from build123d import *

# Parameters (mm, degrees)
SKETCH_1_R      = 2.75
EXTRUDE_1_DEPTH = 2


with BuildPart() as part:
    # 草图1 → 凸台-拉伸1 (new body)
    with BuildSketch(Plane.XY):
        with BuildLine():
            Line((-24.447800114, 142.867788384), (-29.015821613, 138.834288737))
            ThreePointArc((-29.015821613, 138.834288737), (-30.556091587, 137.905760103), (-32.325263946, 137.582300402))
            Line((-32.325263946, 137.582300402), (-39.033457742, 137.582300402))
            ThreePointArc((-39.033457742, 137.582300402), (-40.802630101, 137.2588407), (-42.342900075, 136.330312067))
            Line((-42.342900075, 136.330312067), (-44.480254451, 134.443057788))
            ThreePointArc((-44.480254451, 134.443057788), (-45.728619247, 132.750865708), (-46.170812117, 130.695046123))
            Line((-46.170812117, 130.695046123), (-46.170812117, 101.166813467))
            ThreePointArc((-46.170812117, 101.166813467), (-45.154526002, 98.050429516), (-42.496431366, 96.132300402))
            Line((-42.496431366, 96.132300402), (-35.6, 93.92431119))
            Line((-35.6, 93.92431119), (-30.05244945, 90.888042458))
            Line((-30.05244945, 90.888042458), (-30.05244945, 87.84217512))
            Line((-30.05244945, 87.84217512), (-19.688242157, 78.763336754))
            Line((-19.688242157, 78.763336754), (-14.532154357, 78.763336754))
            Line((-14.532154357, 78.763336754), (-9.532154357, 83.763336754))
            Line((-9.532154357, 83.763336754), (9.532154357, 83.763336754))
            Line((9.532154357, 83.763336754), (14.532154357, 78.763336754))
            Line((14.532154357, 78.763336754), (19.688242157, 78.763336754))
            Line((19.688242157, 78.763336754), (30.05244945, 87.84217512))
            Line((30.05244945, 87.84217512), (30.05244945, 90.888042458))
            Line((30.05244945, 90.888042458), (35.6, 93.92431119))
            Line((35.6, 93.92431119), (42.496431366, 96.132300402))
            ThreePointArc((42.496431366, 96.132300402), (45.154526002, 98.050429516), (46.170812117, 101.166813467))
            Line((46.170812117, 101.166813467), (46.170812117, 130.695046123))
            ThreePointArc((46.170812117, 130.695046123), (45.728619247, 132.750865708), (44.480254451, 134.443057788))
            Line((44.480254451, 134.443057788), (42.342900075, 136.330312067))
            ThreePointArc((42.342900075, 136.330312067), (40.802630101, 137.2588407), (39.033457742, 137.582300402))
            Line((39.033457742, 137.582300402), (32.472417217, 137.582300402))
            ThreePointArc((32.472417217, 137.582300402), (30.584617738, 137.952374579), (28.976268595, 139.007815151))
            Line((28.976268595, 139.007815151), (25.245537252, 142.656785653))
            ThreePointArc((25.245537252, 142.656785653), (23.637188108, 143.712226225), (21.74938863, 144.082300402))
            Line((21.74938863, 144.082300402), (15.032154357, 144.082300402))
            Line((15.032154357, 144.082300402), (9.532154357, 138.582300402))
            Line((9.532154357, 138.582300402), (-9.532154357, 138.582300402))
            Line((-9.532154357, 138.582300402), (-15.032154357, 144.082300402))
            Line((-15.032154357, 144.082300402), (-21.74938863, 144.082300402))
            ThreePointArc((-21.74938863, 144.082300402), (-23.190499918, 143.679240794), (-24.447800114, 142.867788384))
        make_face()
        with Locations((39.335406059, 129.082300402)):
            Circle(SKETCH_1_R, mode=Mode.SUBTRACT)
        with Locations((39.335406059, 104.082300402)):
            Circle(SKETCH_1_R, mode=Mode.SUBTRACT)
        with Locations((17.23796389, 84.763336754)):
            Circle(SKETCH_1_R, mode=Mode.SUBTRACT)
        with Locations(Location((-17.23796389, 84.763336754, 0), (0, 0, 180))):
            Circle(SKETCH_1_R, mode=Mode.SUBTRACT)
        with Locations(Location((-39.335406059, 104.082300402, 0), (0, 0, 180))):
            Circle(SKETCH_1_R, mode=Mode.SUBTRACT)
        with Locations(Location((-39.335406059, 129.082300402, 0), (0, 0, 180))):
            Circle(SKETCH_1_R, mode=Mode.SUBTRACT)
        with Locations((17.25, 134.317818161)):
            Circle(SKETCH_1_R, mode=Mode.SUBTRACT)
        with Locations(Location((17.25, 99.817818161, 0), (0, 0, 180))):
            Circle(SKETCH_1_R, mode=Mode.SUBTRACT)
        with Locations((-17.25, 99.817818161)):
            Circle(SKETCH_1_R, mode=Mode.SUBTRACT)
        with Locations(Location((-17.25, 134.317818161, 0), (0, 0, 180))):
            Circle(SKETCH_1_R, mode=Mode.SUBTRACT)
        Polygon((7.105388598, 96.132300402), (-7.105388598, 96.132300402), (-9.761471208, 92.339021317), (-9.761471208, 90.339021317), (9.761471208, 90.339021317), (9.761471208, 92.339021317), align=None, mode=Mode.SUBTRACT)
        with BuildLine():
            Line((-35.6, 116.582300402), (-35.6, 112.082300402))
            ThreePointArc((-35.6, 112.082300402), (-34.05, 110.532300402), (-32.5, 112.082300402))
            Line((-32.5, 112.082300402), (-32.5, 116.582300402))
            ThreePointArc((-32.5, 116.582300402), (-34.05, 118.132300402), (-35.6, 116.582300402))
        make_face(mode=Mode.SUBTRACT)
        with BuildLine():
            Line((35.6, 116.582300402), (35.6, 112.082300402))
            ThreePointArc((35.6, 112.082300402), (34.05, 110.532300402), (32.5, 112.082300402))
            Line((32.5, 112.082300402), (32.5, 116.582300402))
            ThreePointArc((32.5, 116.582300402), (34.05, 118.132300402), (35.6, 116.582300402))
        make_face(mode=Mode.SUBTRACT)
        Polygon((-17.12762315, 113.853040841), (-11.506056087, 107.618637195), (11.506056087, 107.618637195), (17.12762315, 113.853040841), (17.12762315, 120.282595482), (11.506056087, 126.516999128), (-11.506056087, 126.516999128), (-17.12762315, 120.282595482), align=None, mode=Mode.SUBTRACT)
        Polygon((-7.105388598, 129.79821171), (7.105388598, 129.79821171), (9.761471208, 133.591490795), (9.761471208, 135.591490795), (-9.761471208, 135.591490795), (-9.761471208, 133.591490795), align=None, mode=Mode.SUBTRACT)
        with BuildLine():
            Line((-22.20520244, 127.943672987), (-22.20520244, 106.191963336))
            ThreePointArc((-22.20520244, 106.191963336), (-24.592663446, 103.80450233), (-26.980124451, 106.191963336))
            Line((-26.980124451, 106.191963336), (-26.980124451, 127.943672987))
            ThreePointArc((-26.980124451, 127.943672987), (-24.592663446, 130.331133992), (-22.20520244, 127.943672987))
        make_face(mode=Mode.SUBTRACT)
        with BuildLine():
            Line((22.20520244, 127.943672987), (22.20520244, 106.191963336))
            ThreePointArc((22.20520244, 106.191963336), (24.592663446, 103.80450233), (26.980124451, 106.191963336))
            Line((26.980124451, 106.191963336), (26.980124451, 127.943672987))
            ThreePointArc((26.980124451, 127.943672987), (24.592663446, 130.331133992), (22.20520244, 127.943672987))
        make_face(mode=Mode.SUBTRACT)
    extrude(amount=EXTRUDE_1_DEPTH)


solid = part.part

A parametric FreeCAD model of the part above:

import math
import FreeCAD as App
import Part
import Sketcher
Q = App.Units.Quantity

doc = App.newDocument("Part")
body = doc.addObject("PartDesign::Body", "Body")

# Sketch on XY plane
sketch1 = body.newObject("Sketcher::SketchObject", "Sketch")
sketch1.AttachmentSupport = (doc.getObject("XY_Plane"), [""])
sketch1.MapMode = "FlatFace"
sketch1.addGeometry(Part.LineSegment(App.Vector(-24.4, 142.9, 0), App.Vector(-29, 138.8, 0)), False)
sketch1.addGeometry(Part.ArcOfCircle(Part.Circle(App.Vector(-32.3, 142.6, 0), App.Vector(0, 0, 1), 5), math.radians(-90), math.radians(-49)), False)
sketch1.addGeometry(Part.LineSegment(App.Vector(-32.3, 137.6, 0), App.Vector(-39, 137.6, 0)), False)
sketch1.addGeometry(Part.ArcOfCircle(Part.Circle(App.Vector(-39, 132.6, 0), App.Vector(0, 0, 1), 5), math.radians(90), math.radians(131)), False)
sketch1.addGeometry(Part.LineSegment(App.Vector(-42.3, 136.3, 0), App.Vector(-44.5, 134.4, 0)), False)
sketch1.addGeometry(Part.ArcOfCircle(Part.Circle(App.Vector(-41.2, 130.7, 0), App.Vector(0, 0, 1), 5), math.radians(131), math.radians(180)), False)
sketch1.addGeometry(Part.LineSegment(App.Vector(-46.2, 130.7, 0), App.Vector(-46.2, 101.2, 0)), False)
sketch1.addGeometry(Part.ArcOfCircle(Part.Circle(App.Vector(-40.9, 101.2, 0), App.Vector(0, 0, 1), 5.3), math.radians(180), math.radians(252)), False)
sketch1.addGeometry(Part.LineSegment(App.Vector(-42.5, 96.1, 0), App.Vector(-35.6, 93.9, 0)), False)
sketch1.addGeometry(Part.LineSegment(App.Vector(-35.6, 93.9, 0), App.Vector(-30.1, 90.9, 0)), False)
sketch1.addGeometry(Part.LineSegment(App.Vector(-30.1, 90.9, 0), App.Vector(-30.1, 87.8, 0)), False)
sketch1.addGeometry(Part.LineSegment(App.Vector(-30.1, 87.8, 0), App.Vector(-19.7, 78.8, 0)), False)
sketch1.addGeometry(Part.LineSegment(App.Vector(-19.7, 78.8, 0), App.Vector(-14.5, 78.8, 0)), False)
sketch1.addGeometry(Part.LineSegment(App.Vector(-14.5, 78.8, 0), App.Vector(-9.5, 83.8, 0)), False)
sketch1.addGeometry(Part.LineSegment(App.Vector(-9.5, 83.8, 0), App.Vector(9.5, 83.8, 0)), False)
sketch1.addGeometry(Part.LineSegment(App.Vector(9.5, 83.8, 0), App.Vector(14.5, 78.8, 0)), False)
sketch1.addGeometry(Part.LineSegment(App.Vector(14.5, 78.8, 0), App.Vector(19.7, 78.8, 0)), False)
sketch1.addGeometry(Part.LineSegment(App.Vector(19.7, 78.8, 0), App.Vector(30.1, 87.8, 0)), False)
sketch1.addGeometry(Part.LineSegment(App.Vector(30.1, 87.8, 0), App.Vector(30.1, 90.9, 0)), False)
sketch1.addGeometry(Part.LineSegment(App.Vector(30.1, 90.9, 0), App.Vector(35.6, 93.9, 0)), False)
sketch1.addGeometry(Part.LineSegment(App.Vector(35.6, 93.9, 0), App.Vector(42.5, 96.1, 0)), False)
sketch1.addGeometry(Part.ArcOfCircle(Part.Circle(App.Vector(40.9, 101.2, 0), App.Vector(0, 0, 1), 5.3), math.radians(-72), math.radians(0)), False)
sketch1.addGeometry(Part.LineSegment(App.Vector(46.2, 101.2, 0), App.Vector(46.2, 130.7, 0)), False)
sketch1.addGeometry(Part.ArcOfCircle(Part.Circle(App.Vector(41.2, 130.7, 0), App.Vector(0, 0, 1), 5), math.radians(0), math.radians(49)), False)
sketch1.addGeometry(Part.LineSegment(App.Vector(44.5, 134.4, 0), App.Vector(42.3, 136.3, 0)), False)
sketch1.addGeometry(Part.ArcOfCircle(Part.Circle(App.Vector(39, 132.6, 0), App.Vector(0, 0, 1), 5), math.radians(49), math.radians(90)), False)
sketch1.addGeometry(Part.LineSegment(App.Vector(39, 137.6, 0), App.Vector(32.5, 137.6, 0)), False)
sketch1.addGeometry(Part.ArcOfCircle(Part.Circle(App.Vector(32.5, 142.6, 0), App.Vector(0, 0, 1), 5), math.radians(-134), math.radians(-90)), False)
sketch1.addGeometry(Part.LineSegment(App.Vector(29, 139, 0), App.Vector(25.2, 142.7, 0)), False)
sketch1.addGeometry(Part.ArcOfCircle(Part.Circle(App.Vector(21.7, 139.1, 0), App.Vector(0, 0, 1), 5), math.radians(46), math.radians(90)), False)
sketch1.addGeometry(Part.LineSegment(App.Vector(21.7, 144.1, 0), App.Vector(15, 144.1, 0)), False)
sketch1.addGeometry(Part.LineSegment(App.Vector(15, 144.1, 0), App.Vector(9.5, 138.6, 0)), False)
sketch1.addGeometry(Part.LineSegment(App.Vector(9.5, 138.6, 0), App.Vector(-9.5, 138.6, 0)), False)
sketch1.addGeometry(Part.LineSegment(App.Vector(-9.5, 138.6, 0), App.Vector(-15, 144.1, 0)), False)
sketch1.addGeometry(Part.LineSegment(App.Vector(-15, 144.1, 0), App.Vector(-21.7, 144.1, 0)), False)
sketch1.addGeometry(Part.ArcOfCircle(Part.Circle(App.Vector(-21.1, 139.1, 0), App.Vector(0, 0, 1), 5), math.radians(97), math.radians(131)), False)
sketch1.addGeometry(Part.Circle(App.Vector(-17.2, 84.8, 0), App.Vector(0, 0, 1), 2.8), False)
sketch1.addGeometry(Part.Circle(App.Vector(-39.3, 104.1, 0), App.Vector(0, 0, 1), 2.8), False)
sketch1.addGeometry(Part.Circle(App.Vector(-17.2, 99.8, 0), App.Vector(0, 0, 1), 2.8), False)
sketch1.addGeometry(Part.Circle(App.Vector(17.2, 84.8, 0), App.Vector(0, 0, 1), 2.8), False)
sketch1.addGeometry(Part.LineSegment(App.Vector(-7.1, 96.1, 0), App.Vector(7.1, 96.1, 0)), False)
sketch1.addGeometry(Part.LineSegment(App.Vector(7.1, 96.1, 0), App.Vector(9.8, 92.3, 0)), False)
sketch1.addGeometry(Part.LineSegment(App.Vector(9.8, 92.3, 0), App.Vector(9.8, 90.3, 0)), False)
sketch1.addGeometry(Part.LineSegment(App.Vector(9.8, 90.3, 0), App.Vector(-9.8, 90.3, 0)), False)
sketch1.addGeometry(Part.LineSegment(App.Vector(-9.8, 90.3, 0), App.Vector(-9.8, 92.3, 0)), False)
sketch1.addGeometry(Part.LineSegment(App.Vector(-9.8, 92.3, 0), App.Vector(-7.1, 96.1, 0)), False)
sketch1.addGeometry(Part.Circle(App.Vector(17.2, 99.8, 0), App.Vector(0, 0, 1), 2.8), False)
sketch1.addGeometry(Part.Circle(App.Vector(39.3, 104.1, 0), App.Vector(0, 0, 1), 2.8), False)
sketch1.addGeometry(Part.LineSegment(App.Vector(-35.6, 112.1, 0), App.Vector(-35.6, 116.6, 0)), False)
sketch1.addGeometry(Part.ArcOfCircle(Part.Circle(App.Vector(-34, 116.6, 0), App.Vector(0, 0, 1), 1.6), math.radians(0), math.radians(180)), False)
sketch1.addGeometry(Part.LineSegment(App.Vector(-32.5, 116.6, 0), App.Vector(-32.5, 112.1, 0)), False)
sketch1.addGeometry(Part.ArcOfCircle(Part.Circle(App.Vector(-34, 112.1, 0), App.Vector(0, 0, 1), 1.6), math.radians(180), math.radians(360)), False)
sketch1.addGeometry(Part.ArcOfCircle(Part.Circle(App.Vector(-24.6, 127.9, 0), App.Vector(0, 0, 1), 2.4), math.radians(0), math.radians(180)), False)
sketch1.addGeometry(Part.LineSegment(App.Vector(-22.2, 127.9, 0), App.Vector(-22.2, 106.2, 0)), False)
sketch1.addGeometry(Part.ArcOfCircle(Part.Circle(App.Vector(-24.6, 106.2, 0), App.Vector(0, 0, 1), 2.4), math.radians(180), math.radians(360)), False)
sketch1.addGeometry(Part.LineSegment(App.Vector(-27, 106.2, 0), App.Vector(-27, 127.9, 0)), False)
sketch1.addGeometry(Part.Circle(App.Vector(-39.3, 129.1, 0), App.Vector(0, 0, 1), 2.8), False)
sketch1.addGeometry(Part.Circle(App.Vector(-17.2, 134.3, 0), App.Vector(0, 0, 1), 2.8), False)
sketch1.addGeometry(Part.LineSegment(App.Vector(-11.5, 107.6, 0), App.Vector(-17.1, 113.9, 0)), False)
sketch1.addGeometry(Part.LineSegment(App.Vector(-17.1, 113.9, 0), App.Vector(-17.1, 120.3, 0)), False)
sketch1.addGeometry(Part.LineSegment(App.Vector(-17.1, 120.3, 0), App.Vector(-11.5, 126.5, 0)), False)
sketch1.addGeometry(Part.LineSegment(App.Vector(-11.5, 126.5, 0), App.Vector(11.5, 126.5, 0)), False)
sketch1.addGeometry(Part.LineSegment(App.Vector(11.5, 126.5, 0), App.Vector(17.1, 120.3, 0)), False)
sketch1.addGeometry(Part.LineSegment(App.Vector(17.1, 120.3, 0), App.Vector(17.1, 113.9, 0)), False)
sketch1.addGeometry(Part.LineSegment(App.Vector(17.1, 113.9, 0), App.Vector(11.5, 107.6, 0)), False)
sketch1.addGeometry(Part.LineSegment(App.Vector(11.5, 107.6, 0), App.Vector(-11.5, 107.6, 0)), False)
sketch1.addGeometry(Part.ArcOfCircle(Part.Circle(App.Vector(34, 116.6, 0), App.Vector(0, 0, 1), 1.6), math.radians(0), math.radians(180)), False)
sketch1.addGeometry(Part.LineSegment(App.Vector(35.6, 116.6, 0), App.Vector(35.6, 112.1, 0)), False)
sketch1.addGeometry(Part.ArcOfCircle(Part.Circle(App.Vector(34, 112.1, 0), App.Vector(0, 0, 1), 1.6), math.radians(180), math.radians(360)), False)
sketch1.addGeometry(Part.LineSegment(App.Vector(32.5, 112.1, 0), App.Vector(32.5, 116.6, 0)), False)
sketch1.addGeometry(Part.LineSegment(App.Vector(22.2, 106.2, 0), App.Vector(22.2, 127.9, 0)), False)
sketch1.addGeometry(Part.ArcOfCircle(Part.Circle(App.Vector(24.6, 127.9, 0), App.Vector(0, 0, 1), 2.4), math.radians(0), math.radians(180)), False)
sketch1.addGeometry(Part.LineSegment(App.Vector(27, 127.9, 0), App.Vector(27, 106.2, 0)), False)
sketch1.addGeometry(Part.ArcOfCircle(Part.Circle(App.Vector(24.6, 106.2, 0), App.Vector(0, 0, 1), 2.4), math.radians(180), math.radians(360)), False)
sketch1.addGeometry(Part.LineSegment(App.Vector(7.1, 129.8, 0), App.Vector(-7.1, 129.8, 0)), False)
sketch1.addGeometry(Part.LineSegment(App.Vector(-7.1, 129.8, 0), App.Vector(-9.8, 133.6, 0)), False)
sketch1.addGeometry(Part.LineSegment(App.Vector(-9.8, 133.6, 0), App.Vector(-9.8, 135.6, 0)), False)
sketch1.addGeometry(Part.LineSegment(App.Vector(-9.8, 135.6, 0), App.Vector(9.8, 135.6, 0)), False)
sketch1.addGeometry(Part.LineSegment(App.Vector(9.8, 135.6, 0), App.Vector(9.8, 133.6, 0)), False)
sketch1.addGeometry(Part.LineSegment(App.Vector(9.8, 133.6, 0), App.Vector(7.1, 129.8, 0)), False)
sketch1.addGeometry(Part.Circle(App.Vector(17.2, 134.3, 0), App.Vector(0, 0, 1), 2.8), False)
sketch1.addGeometry(Part.Circle(App.Vector(39.3, 129.1, 0), App.Vector(0, 0, 1), 2.8), False)
sketch1.addConstraint(Sketcher.Constraint("Tangent", 0, 2, 1, 2))
sketch1.addConstraint(Sketcher.Constraint("Tangent", 1, 1, 2, 1))
sketch1.addConstraint(Sketcher.Constraint("Tangent", 2, 2, 3, 1))
sketch1.addConstraint(Sketcher.Constraint("Tangent", 3, 2, 4, 1))
sketch1.addConstraint(Sketcher.Constraint("Tangent", 4, 2, 5, 1))
sketch1.addConstraint(Sketcher.Constraint("Tangent", 5, 2, 6, 1))
sketch1.addConstraint(Sketcher.Constraint("Tangent", 6, 2, 7, 1))
sketch1.addConstraint(Sketcher.Constraint("Tangent", 7, 2, 8, 1))
sketch1.addConstraint(Sketcher.Constraint("Coincident", 8, 2, 9, 1))
sketch1.addConstraint(Sketcher.Constraint("Coincident", 9, 2, 10, 1))
sketch1.addConstraint(Sketcher.Constraint("Coincident", 10, 2, 11, 1))
sketch1.addConstraint(Sketcher.Constraint("Coincident", 11, 2, 12, 1))
sketch1.addConstraint(Sketcher.Constraint("Coincident", 12, 2, 13, 1))
sketch1.addConstraint(Sketcher.Constraint("Coincident", 13, 2, 14, 1))
sketch1.addConstraint(Sketcher.Constraint("Coincident", 14, 2, 15, 1))
sketch1.addConstraint(Sketcher.Constraint("Coincident", 15, 2, 16, 1))
sketch1.addConstraint(Sketcher.Constraint("Coincident", 16, 2, 17, 1))
sketch1.addConstraint(Sketcher.Constraint("Coincident", 17, 2, 18, 1))
sketch1.addConstraint(Sketcher.Constraint("Coincident", 18, 2, 19, 1))
sketch1.addConstraint(Sketcher.Constraint("Coincident", 19, 2, 20, 1))
sketch1.addConstraint(Sketcher.Constraint("Tangent", 20, 2, 21, 1))
sketch1.addConstraint(Sketcher.Constraint("Tangent", 21, 2, 22, 1))
sketch1.addConstraint(Sketcher.Constraint("Tangent", 22, 2, 23, 1))
sketch1.addConstraint(Sketcher.Constraint("Tangent", 23, 2, 24, 1))
sketch1.addConstraint(Sketcher.Constraint("Tangent", 24, 2, 25, 1))
sketch1.addConstraint(Sketcher.Constraint("Tangent", 25, 2, 26, 1))
sketch1.addConstraint(Sketcher.Constraint("Tangent", 26, 2, 27, 2))
sketch1.addConstraint(Sketcher.Constraint("Tangent", 27, 1, 28, 1))
sketch1.addConstraint(Sketcher.Constraint("Tangent", 28, 2, 29, 1))
sketch1.addConstraint(Sketcher.Constraint("Tangent", 29, 2, 30, 1))
sketch1.addConstraint(Sketcher.Constraint("Coincident", 30, 2, 31, 1))
sketch1.addConstraint(Sketcher.Constraint("Coincident", 31, 2, 32, 1))
sketch1.addConstraint(Sketcher.Constraint("Coincident", 32, 2, 33, 1))
sketch1.addConstraint(Sketcher.Constraint("Coincident", 33, 2, 34, 1))
sketch1.addConstraint(Sketcher.Constraint("Coincident", 34, 2, 35, 1))
sketch1.addConstraint(Sketcher.Constraint("Tangent", 35, 2, 0, 1))
sketch1.addConstraint(Sketcher.Constraint("Coincident", 40, 2, 41, 1))
sketch1.addConstraint(Sketcher.Constraint("Coincident", 41, 2, 42, 1))
sketch1.addConstraint(Sketcher.Constraint("Coincident", 42, 2, 43, 1))
sketch1.addConstraint(Sketcher.Constraint("Coincident", 43, 2, 44, 1))
sketch1.addConstraint(Sketcher.Constraint("Coincident", 44, 2, 45, 1))
sketch1.addConstraint(Sketcher.Constraint("Coincident", 45, 2, 40, 1))
sketch1.addConstraint(Sketcher.Constraint("Tangent", 48, 2, 49, 2))
sketch1.addConstraint(Sketcher.Constraint("Tangent", 49, 1, 50, 1))
sketch1.addConstraint(Sketcher.Constraint("Tangent", 50, 2, 51, 2))
sketch1.addConstraint(Sketcher.Constraint("Tangent", 51, 1, 48, 1))
sketch1.addConstraint(Sketcher.Constraint("Tangent", 52, 1, 53, 1))
sketch1.addConstraint(Sketcher.Constraint("Tangent", 53, 2, 54, 2))
sketch1.addConstraint(Sketcher.Constraint("Tangent", 54, 1, 55, 1))
sketch1.addConstraint(Sketcher.Constraint("Tangent", 55, 2, 52, 2))
sketch1.addConstraint(Sketcher.Constraint("Coincident", 58, 2, 59, 1))
sketch1.addConstraint(Sketcher.Constraint("Coincident", 59, 2, 60, 1))
sketch1.addConstraint(Sketcher.Constraint("Coincident", 60, 2, 61, 1))
sketch1.addConstraint(Sketcher.Constraint("Coincident", 61, 2, 62, 1))
sketch1.addConstraint(Sketcher.Constraint("Coincident", 62, 2, 63, 1))
sketch1.addConstraint(Sketcher.Constraint("Coincident", 63, 2, 64, 1))
sketch1.addConstraint(Sketcher.Constraint("Coincident", 64, 2, 65, 1))
sketch1.addConstraint(Sketcher.Constraint("Coincident", 65, 2, 58, 1))
sketch1.addConstraint(Sketcher.Constraint("Tangent", 66, 1, 67, 1))
sketch1.addConstraint(Sketcher.Constraint("Tangent", 67, 2, 68, 2))
sketch1.addConstraint(Sketcher.Constraint("Tangent", 68, 1, 69, 1))
sketch1.addConstraint(Sketcher.Constraint("Tangent", 69, 2, 66, 2))
sketch1.addConstraint(Sketcher.Constraint("Tangent", 70, 2, 71, 2))
sketch1.addConstraint(Sketcher.Constraint("Tangent", 71, 1, 72, 1))
sketch1.addConstraint(Sketcher.Constraint("Tangent", 72, 2, 73, 2))
sketch1.addConstraint(Sketcher.Constraint("Tangent", 73, 1, 70, 1))
sketch1.addConstraint(Sketcher.Constraint("Coincident", 74, 2, 75, 1))
sketch1.addConstraint(Sketcher.Constraint("Coincident", 75, 2, 76, 1))
sketch1.addConstraint(Sketcher.Constraint("Coincident", 76, 2, 77, 1))
sketch1.addConstraint(Sketcher.Constraint("Coincident", 77, 2, 78, 1))
sketch1.addConstraint(Sketcher.Constraint("Coincident", 78, 2, 79, 1))
sketch1.addConstraint(Sketcher.Constraint("Coincident", 79, 2, 74, 1))
sketch1.addConstraint(Sketcher.Constraint("Horizontal", 2))
sketch1.addConstraint(Sketcher.Constraint("Vertical", 6))
sketch1.addConstraint(Sketcher.Constraint("Vertical", 10))
sketch1.addConstraint(Sketcher.Constraint("Horizontal", 12))
sketch1.addConstraint(Sketcher.Constraint("Horizontal", 14))
sketch1.addConstraint(Sketcher.Constraint("Horizontal", 16))
sketch1.addConstraint(Sketcher.Constraint("Vertical", 18))
sketch1.addConstraint(Sketcher.Constraint("Vertical", 22))
sketch1.addConstraint(Sketcher.Constraint("Horizontal", 26))
sketch1.addConstraint(Sketcher.Constraint("Horizontal", 30))
sketch1.addConstraint(Sketcher.Constraint("Horizontal", 32))
sketch1.addConstraint(Sketcher.Constraint("Horizontal", 34))
sketch1.addConstraint(Sketcher.Constraint("Horizontal", 40))
sketch1.addConstraint(Sketcher.Constraint("Vertical", 42))
sketch1.addConstraint(Sketcher.Constraint("Horizontal", 43))
sketch1.addConstraint(Sketcher.Constraint("Vertical", 44))
sketch1.addConstraint(Sketcher.Constraint("Vertical", 48))
sketch1.addConstraint(Sketcher.Constraint("Vertical", 50))
sketch1.addConstraint(Sketcher.Constraint("Vertical", 53))
sketch1.addConstraint(Sketcher.Constraint("Vertical", 55))
sketch1.addConstraint(Sketcher.Constraint("Vertical", 59))
sketch1.addConstraint(Sketcher.Constraint("Horizontal", 61))
sketch1.addConstraint(Sketcher.Constraint("Vertical", 63))
sketch1.addConstraint(Sketcher.Constraint("Horizontal", 65))
sketch1.addConstraint(Sketcher.Constraint("Vertical", 67))
sketch1.addConstraint(Sketcher.Constraint("Vertical", 69))
sketch1.addConstraint(Sketcher.Constraint("Vertical", 70))
sketch1.addConstraint(Sketcher.Constraint("Vertical", 72))
sketch1.addConstraint(Sketcher.Constraint("Horizontal", 74))
sketch1.addConstraint(Sketcher.Constraint("Vertical", 76))
sketch1.addConstraint(Sketcher.Constraint("Horizontal", 77))
sketch1.addConstraint(Sketcher.Constraint("Vertical", 78))
sketch1.addConstraint(Sketcher.Constraint("Equal", 1, 3))
sketch1.addConstraint(Sketcher.Constraint("Equal", 3, 5))
sketch1.addConstraint(Sketcher.Constraint("Equal", 7, 21))
sketch1.addConstraint(Sketcher.Constraint("Equal", 5, 23))
sketch1.addConstraint(Sketcher.Constraint("Equal", 23, 25))
sketch1.addConstraint(Sketcher.Constraint("Equal", 25, 27))
sketch1.addConstraint(Sketcher.Constraint("Equal", 27, 29))
sketch1.addConstraint(Sketcher.Constraint("Equal", 29, 35))
sketch1.addConstraint(Sketcher.Constraint("Equal", 36, 37))
sketch1.addConstraint(Sketcher.Constraint("Equal", 37, 38))
sketch1.addConstraint(Sketcher.Constraint("Equal", 38, 39))
sketch1.addConstraint(Sketcher.Constraint("Equal", 39, 46))
sketch1.addConstraint(Sketcher.Constraint("Equal", 46, 47))
sketch1.addConstraint(Sketcher.Constraint("Equal", 47, 56))
sketch1.addConstraint(Sketcher.Constraint("Equal", 56, 57))
sketch1.addConstraint(Sketcher.Constraint("Equal", 51, 66))
sketch1.addConstraint(Sketcher.Constraint("Equal", 54, 71))
sketch1.addConstraint(Sketcher.Constraint("Equal", 57, 80))
sketch1.addConstraint(Sketcher.Constraint("Equal", 80, 81))
sketch1.addConstraint(Sketcher.Constraint("Symmetric", 7, 3, 21, 3, -2))
sketch1.addConstraint(Sketcher.Constraint("Symmetric", 3, 3, 25, 3, -2))
sketch1.addConstraint(Sketcher.Constraint("Symmetric", 36, 3, 39, 3, -2))
sketch1.addConstraint(Sketcher.Constraint("Symmetric", 38, 3, 46, 3, -2))
sketch1.addConstraint(Sketcher.Constraint("Symmetric", 37, 3, 47, 3, -2))
sketch1.addConstraint(Sketcher.Constraint("Symmetric", 49, 3, 66, 3, -2))
sketch1.addConstraint(Sketcher.Constraint("Symmetric", 52, 3, 71, 3, -2))
sketch1.addConstraint(Sketcher.Constraint("Symmetric", 57, 3, 80, 3, -2))
sketch1.addConstraint(Sketcher.Constraint("Symmetric", 56, 3, 81, 3, -2))
sketch1.addConstraint(Sketcher.Constraint("Symmetric", 12, 2, 15, 2, -2))
sketch1.addConstraint(Sketcher.Constraint("Symmetric", 10, 2, 17, 2, -2))
sketch1.addConstraint(Sketcher.Constraint("Symmetric", 8, 2, 19, 2, -2))
sketch1.addConstraint(Sketcher.Constraint("Symmetric", 30, 2, 33, 2, -2))
sketch1.addConstraint(Sketcher.Constraint("Symmetric", 41, 2, 44, 2, -2))
sketch1.addConstraint(Sketcher.Constraint("Symmetric", 59, 2, 62, 2, -2))
sketch1.addConstraint(Sketcher.Constraint("Symmetric", 75, 2, 78, 2, -2))
sketch1.addConstraint(Sketcher.Constraint("Parallel", 0, 4))
sketch1.addConstraint(Sketcher.Constraint("Perpendicular", 13, 15))
sketch1.addConstraint(Sketcher.Constraint("Perpendicular", 15, 31))
sketch1.addConstraint(Sketcher.Constraint("Perpendicular", 31, 33))
sketch1.addConstraint(Sketcher.Constraint("Parallel", 58, 62))
sketch1.addConstraint(Sketcher.Constraint("Parallel", 60, 64))
sketch1.addConstraint(Sketcher.Constraint("Parallel", 41, 75))
sketch1.addConstraint(Sketcher.Constraint("Parallel", 45, 79))
sketch1.addConstraint(Sketcher.Constraint("Horizontal", 5, 3, 23, 3))
sketch1.addConstraint(Sketcher.Constraint("Horizontal", 51, 3, 68, 3))
sketch1.addConstraint(Sketcher.Constraint("Horizontal", 54, 3, 73, 3))
sketch1.addConstraint(Sketcher.Constraint("Horizontal", 9, 2, 18, 2))
sketch1.addConstraint(Sketcher.Constraint("Horizontal", 20, 2, 40, 2))
sketch1.addConstraint(Sketcher.Constraint("Horizontal", 58, 2, 63, 2))
sketch1.addConstraint(Sketcher.Constraint("Vertical", 37, 3, 56, 3))
sketch1.addConstraint(Sketcher.Constraint("Vertical", 38, 3, 57, 3))
sketch1.addConstraint(Sketcher.Constraint("Vertical", 14, 2, 31, 2))
sketch1.addConstraint(Sketcher.Constraint("Vertical", 13, 2, 32, 2))
sketch1.addConstraint(Sketcher.Constraint("Vertical", 8, 2, 48, 2))
sketch1.addConstraint(Sketcher.Constraint("Vertical", 61, 2, 64, 2))
sketch1.addConstraint(Sketcher.Constraint("Vertical", 60, 2, 65, 2))
sketch1.addConstraint(Sketcher.Constraint("Vertical", 45, 2, 74, 2))
sketch1.addConstraint(Sketcher.Constraint("Vertical", 44, 2, 75, 2))
sketch1.addConstraint(Sketcher.Constraint("Vertical", 40, 2, 79, 2))
sketch1.addConstraint(Sketcher.Constraint("Equal", 12, 16))
sketch1.addConstraint(Sketcher.Constraint("Equal", 30, 34))
sketch1.addConstraint(Sketcher.Constraint("Equal", 44, 76))
sketch1.addConstraint(Sketcher.Constraint("Radius", 1, 5.0))
sketch1.addConstraint(Sketcher.Constraint("Diameter", 36, 5.5))
sketch1.addConstraint(Sketcher.Constraint("DistanceY", 42, 2, 42, 1, 2.0))
sketch1.addConstraint(Sketcher.Constraint("Angle", 41, Q("-55 deg")))
sketch1.addConstraint(Sketcher.Constraint("Radius", 49, 1.55))
sketch1.addConstraint(Sketcher.Constraint("DistanceY", 48, 1, 48, 2, 4.5))
sketch1.addConstraint(Sketcher.Constraint("DistanceX", 8, 2, -1, 1, 35.6))
sketch1.addConstraint(Sketcher.Constraint("DistanceX", 38, 3, -1, 1, 17.25))
sketch1.addConstraint(Sketcher.Constraint("Radius", 7, 5.286251))
sketch1.addConstraint(Sketcher.Constraint("Radius", 52, 2.387461))
sketch1.addConstraint(Sketcher.Constraint("DistanceY", -1, 1, 60, 2, 126.516999))
sketch1.addConstraint(Sketcher.Constraint("Distance", 9, 6.3241))
sketch1.addConstraint(Sketcher.Constraint("DistanceX", 14, 1, 14, 2, 19.064309))
sketch1.addConstraint(Sketcher.Constraint("DistanceX", 26, 2, 26, 1, 6.561041))
sketch1.addConstraint(Sketcher.Constraint("DistanceY", 53, 2, 53, 1, 21.75171))
sketch1.addConstraint(Sketcher.Constraint("DistanceY", -1, 1, 1, 3, 142.5823))
sketch1.addConstraint(Sketcher.Constraint("DistanceY", -1, 1, 29, 3, 139.0823))
sketch1.addConstraint(Sketcher.Constraint("DistanceY", -1, 1, 37, 3, 104.0823))
sketch1.addConstraint(Sketcher.Constraint("DistanceY", -1, 1, 49, 3, 116.5823))
sketch1.addConstraint(Sketcher.Constraint("DistanceY", -1, 1, 56, 3, 129.0823))
sketch1.addConstraint(Sketcher.Constraint("DistanceX", 3, 2, -1, 1, 42.3429))
sketch1.addConstraint(Sketcher.Constraint("DistanceY", -1, 1, 7, 2, 96.1323))
sketch1.addConstraint(Sketcher.Constraint("DistanceY", -1, 1, 31, 2, 138.5823))
sketch1.addConstraint(Sketcher.Constraint("DistanceX", 35, 2, -1, 1, 24.4478))
sketch1.addConstraint(Sketcher.Constraint("Distance", 8, 7.241269))
sketch1.addConstraint(Sketcher.Constraint("Distance", 11, 13.77832))
sketch1.addConstraint(Sketcher.Constraint("Distance", 41, 4.630739))
sketch1.addConstraint(Sketcher.Constraint("Distance", 58, 8.39463))
sketch1.addConstraint(Sketcher.Constraint("DistanceX", 2, 2, 2, 1, 6.708194))
sketch1.addConstraint(Sketcher.Constraint("DistanceX", 12, 1, 12, 2, 5.156088))
sketch1.addConstraint(Sketcher.Constraint("DistanceX", 30, 2, 30, 1, 6.717234))
sketch1.addConstraint(Sketcher.Constraint("DistanceX", 40, 1, 40, 2, 14.210777))
sketch1.addConstraint(Sketcher.Constraint("DistanceX", 61, 1, 61, 2, 23.012112))
sketch1.addConstraint(Sketcher.Constraint("DistanceY", 6, 2, 6, 1, 29.528233))
sketch1.addConstraint(Sketcher.Constraint("DistanceY", 10, 2, 10, 1, 3.045867))
sketch1.addConstraint(Sketcher.Constraint("DistanceY", 59, 1, 59, 2, 6.429555))
sketch1.addConstraint(Sketcher.Constraint("DistanceY", -1, 1, 38, 3, 99.817818))
sketch1.addConstraint(Sketcher.Constraint("DistanceY", -1, 1, 57, 3, 134.317818))
sketch1.addConstraint(Sketcher.Constraint("DistanceX", 9, 2, -1, 1, 30.052449))
sketch1.addConstraint(Sketcher.Constraint("DistanceY", -1, 1, 58, 2, 113.853041))
sketch1.addConstraint(Sketcher.Constraint("DistanceY", -1, 1, 74, 2, 129.798212))
sketch1.addConstraint(Sketcher.Constraint("Distance", 13, 7.071068))
sketch1.addConstraint(Sketcher.Constraint("DistanceX", 36, 3, -1, 1, 17.237964))
sketch1.addConstraint(Sketcher.Constraint("DistanceY", -1, 1, 36, 3, 84.763337))
sketch1.addConstraint(Sketcher.Constraint("DistanceX", 37, 3, -1, 1, 39.335406))
sketch1.addConstraint(Sketcher.Constraint("DistanceX", 52, 3, -1, 1, 24.592663))
sketch1.addConstraint(Sketcher.Constraint("DistanceY", -1, 1, 52, 3, 127.943673))
pad1 = body.newObject("PartDesign::Pad", "Pad")
pad1.Profile = sketch1
pad1.Length = 2

doc.recompute()
